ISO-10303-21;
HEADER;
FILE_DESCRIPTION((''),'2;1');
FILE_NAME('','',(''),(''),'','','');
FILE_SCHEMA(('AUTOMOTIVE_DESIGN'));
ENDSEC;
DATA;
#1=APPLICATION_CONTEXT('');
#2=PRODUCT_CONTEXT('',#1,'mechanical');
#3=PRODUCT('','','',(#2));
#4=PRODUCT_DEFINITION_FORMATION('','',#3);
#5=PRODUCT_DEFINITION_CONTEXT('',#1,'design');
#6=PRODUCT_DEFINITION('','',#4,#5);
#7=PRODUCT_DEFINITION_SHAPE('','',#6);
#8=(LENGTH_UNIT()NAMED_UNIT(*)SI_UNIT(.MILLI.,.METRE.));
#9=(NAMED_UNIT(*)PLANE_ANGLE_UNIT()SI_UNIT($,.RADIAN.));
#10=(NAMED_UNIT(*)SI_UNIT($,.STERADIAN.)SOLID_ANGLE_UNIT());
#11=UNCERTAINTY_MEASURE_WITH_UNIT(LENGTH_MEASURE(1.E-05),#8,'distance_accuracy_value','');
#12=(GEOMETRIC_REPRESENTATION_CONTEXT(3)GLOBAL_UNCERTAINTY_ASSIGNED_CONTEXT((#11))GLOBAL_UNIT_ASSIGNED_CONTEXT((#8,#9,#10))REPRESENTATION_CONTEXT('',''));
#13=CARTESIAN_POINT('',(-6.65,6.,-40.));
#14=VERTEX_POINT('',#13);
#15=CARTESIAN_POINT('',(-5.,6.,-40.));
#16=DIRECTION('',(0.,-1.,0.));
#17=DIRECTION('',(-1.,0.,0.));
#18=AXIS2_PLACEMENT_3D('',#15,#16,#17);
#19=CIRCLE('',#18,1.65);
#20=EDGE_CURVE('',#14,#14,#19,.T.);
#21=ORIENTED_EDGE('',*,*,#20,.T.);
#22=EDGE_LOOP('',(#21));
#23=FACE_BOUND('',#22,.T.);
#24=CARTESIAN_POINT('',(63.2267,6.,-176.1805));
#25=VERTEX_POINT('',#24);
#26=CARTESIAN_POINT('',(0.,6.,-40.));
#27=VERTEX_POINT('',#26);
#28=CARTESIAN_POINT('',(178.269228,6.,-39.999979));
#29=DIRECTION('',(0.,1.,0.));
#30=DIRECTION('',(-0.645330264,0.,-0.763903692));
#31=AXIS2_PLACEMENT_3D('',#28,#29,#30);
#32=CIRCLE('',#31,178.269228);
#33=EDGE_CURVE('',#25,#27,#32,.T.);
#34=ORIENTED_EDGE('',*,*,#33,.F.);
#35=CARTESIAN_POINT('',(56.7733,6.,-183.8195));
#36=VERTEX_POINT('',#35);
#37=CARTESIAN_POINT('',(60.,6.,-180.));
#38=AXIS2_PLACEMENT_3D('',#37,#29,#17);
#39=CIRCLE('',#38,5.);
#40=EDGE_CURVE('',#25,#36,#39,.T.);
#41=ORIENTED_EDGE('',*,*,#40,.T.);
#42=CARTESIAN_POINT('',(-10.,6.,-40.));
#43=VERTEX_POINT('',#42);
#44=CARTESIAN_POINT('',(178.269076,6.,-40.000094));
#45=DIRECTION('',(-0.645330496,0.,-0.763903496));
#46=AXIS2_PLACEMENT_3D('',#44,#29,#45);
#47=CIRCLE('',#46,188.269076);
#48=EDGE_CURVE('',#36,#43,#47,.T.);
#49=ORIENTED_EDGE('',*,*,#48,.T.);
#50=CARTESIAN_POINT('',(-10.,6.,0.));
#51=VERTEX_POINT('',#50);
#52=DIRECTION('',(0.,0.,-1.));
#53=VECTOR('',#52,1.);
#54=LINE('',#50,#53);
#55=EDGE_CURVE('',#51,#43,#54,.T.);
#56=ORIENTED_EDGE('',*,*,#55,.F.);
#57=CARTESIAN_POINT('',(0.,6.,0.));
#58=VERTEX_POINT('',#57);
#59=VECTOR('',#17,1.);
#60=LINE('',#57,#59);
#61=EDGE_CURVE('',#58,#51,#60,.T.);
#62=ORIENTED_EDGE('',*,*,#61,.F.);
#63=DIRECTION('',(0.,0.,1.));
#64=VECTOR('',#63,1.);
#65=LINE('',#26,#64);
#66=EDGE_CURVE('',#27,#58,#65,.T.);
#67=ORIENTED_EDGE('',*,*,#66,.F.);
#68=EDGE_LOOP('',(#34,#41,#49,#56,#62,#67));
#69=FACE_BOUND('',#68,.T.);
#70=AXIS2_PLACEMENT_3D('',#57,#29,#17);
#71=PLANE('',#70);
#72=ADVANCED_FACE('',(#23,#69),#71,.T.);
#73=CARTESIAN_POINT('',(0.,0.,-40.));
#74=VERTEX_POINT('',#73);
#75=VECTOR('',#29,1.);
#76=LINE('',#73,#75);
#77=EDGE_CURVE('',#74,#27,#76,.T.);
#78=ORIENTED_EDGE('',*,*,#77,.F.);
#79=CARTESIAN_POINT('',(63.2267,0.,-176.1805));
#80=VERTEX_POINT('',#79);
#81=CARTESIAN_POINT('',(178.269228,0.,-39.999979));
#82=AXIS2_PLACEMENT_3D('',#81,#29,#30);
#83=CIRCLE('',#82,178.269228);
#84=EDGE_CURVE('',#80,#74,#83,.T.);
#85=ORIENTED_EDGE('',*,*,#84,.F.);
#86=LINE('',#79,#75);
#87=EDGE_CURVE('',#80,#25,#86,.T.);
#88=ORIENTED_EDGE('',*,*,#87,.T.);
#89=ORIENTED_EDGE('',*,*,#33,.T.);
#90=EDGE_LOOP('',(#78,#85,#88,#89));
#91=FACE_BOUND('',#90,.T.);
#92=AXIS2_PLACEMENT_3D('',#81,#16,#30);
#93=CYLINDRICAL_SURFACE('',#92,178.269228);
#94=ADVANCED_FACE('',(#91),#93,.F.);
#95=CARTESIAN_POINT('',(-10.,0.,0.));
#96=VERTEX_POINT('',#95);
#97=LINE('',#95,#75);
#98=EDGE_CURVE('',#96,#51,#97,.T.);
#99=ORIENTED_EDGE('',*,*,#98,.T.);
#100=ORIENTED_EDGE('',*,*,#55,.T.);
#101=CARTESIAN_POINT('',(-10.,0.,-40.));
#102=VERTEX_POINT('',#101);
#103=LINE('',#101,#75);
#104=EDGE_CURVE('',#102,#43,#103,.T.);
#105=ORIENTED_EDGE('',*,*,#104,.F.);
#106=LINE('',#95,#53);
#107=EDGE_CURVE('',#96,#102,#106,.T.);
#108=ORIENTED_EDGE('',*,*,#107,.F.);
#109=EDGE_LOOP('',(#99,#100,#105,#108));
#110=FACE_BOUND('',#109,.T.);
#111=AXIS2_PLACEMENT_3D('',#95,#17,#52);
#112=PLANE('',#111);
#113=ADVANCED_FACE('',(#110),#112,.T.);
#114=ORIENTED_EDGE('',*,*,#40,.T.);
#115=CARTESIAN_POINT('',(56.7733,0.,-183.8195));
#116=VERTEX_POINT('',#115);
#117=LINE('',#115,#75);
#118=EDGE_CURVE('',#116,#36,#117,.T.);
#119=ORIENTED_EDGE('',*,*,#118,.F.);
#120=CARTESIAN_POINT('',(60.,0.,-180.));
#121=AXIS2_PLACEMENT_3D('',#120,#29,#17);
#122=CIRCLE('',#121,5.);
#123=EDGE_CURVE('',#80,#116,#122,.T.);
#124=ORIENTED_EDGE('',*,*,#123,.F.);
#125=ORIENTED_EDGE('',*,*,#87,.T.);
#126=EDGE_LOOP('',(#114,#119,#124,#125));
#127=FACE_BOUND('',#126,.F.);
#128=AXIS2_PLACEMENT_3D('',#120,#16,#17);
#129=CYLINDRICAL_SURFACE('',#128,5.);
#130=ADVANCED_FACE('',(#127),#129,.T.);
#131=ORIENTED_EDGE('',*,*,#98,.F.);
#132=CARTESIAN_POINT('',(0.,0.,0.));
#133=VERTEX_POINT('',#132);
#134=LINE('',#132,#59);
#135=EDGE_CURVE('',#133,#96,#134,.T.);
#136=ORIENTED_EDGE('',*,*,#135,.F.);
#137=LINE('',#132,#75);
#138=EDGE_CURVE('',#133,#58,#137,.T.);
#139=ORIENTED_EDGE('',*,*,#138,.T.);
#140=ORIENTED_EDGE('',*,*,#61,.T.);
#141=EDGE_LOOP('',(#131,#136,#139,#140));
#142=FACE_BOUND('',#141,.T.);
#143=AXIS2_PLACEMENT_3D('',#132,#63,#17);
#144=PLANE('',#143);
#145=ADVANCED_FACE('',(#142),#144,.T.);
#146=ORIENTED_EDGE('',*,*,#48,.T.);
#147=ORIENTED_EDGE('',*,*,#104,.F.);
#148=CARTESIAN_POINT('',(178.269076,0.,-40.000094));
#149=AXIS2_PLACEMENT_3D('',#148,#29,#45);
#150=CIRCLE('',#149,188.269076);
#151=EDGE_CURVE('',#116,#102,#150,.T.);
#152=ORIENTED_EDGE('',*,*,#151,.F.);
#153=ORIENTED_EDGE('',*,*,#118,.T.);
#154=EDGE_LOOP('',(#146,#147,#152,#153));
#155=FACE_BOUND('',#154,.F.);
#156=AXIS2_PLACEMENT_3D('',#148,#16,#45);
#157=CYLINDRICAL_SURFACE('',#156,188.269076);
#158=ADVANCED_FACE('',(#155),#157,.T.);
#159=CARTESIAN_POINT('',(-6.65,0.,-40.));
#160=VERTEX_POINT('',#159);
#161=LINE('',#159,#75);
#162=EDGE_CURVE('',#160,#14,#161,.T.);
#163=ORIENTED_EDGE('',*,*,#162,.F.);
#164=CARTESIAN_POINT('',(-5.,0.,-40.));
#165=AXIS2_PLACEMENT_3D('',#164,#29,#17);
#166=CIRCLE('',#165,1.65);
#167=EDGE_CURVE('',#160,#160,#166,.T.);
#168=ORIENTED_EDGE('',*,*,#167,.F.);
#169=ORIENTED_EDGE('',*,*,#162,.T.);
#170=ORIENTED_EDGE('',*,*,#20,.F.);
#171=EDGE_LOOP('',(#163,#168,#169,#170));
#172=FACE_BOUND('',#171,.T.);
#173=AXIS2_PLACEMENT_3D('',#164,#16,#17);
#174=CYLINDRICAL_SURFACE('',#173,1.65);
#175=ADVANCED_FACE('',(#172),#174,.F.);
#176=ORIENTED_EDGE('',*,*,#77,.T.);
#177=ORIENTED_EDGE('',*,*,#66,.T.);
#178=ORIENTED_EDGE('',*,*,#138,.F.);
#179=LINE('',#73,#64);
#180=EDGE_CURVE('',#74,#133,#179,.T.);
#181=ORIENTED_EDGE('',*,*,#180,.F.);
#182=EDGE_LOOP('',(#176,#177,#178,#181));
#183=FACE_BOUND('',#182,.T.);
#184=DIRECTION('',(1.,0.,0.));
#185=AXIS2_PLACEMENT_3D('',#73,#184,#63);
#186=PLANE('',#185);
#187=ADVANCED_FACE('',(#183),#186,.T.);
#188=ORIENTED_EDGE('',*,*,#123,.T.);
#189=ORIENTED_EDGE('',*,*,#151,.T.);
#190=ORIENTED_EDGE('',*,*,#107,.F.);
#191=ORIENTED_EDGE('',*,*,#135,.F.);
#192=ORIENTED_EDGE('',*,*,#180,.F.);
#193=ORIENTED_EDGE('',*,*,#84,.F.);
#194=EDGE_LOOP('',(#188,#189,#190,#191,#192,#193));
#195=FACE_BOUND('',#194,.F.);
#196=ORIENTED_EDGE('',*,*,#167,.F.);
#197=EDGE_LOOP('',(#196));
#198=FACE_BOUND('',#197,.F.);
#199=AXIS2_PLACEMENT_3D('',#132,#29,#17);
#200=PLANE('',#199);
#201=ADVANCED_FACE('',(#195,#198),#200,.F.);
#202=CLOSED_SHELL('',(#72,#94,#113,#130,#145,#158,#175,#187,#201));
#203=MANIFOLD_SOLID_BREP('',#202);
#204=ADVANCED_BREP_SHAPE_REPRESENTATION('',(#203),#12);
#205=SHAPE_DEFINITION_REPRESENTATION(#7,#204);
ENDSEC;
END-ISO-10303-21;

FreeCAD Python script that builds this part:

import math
import FreeCAD as App
import Part
import Sketcher

V = App.Vector
Q = App.Units.Quantity

doc = App.newDocument("Part")
body = doc.addObject("PartDesign::Body", "Body")

sketch1 = body.newObject("Sketcher::SketchObject", "Sketch")
sketch1.AttachmentSupport = (doc.getObject("XZ_Plane"), [""])
sketch1.MapMode = "FlatFace"
sketch1.addGeometry([
    Part.LineSegment(V(-10, 0, 0), V(0, 0, 0)),
    Part.LineSegment(V(0, 0, 0), V(0, -40, 0)),
    Part.ArcOfCircle(Part.Circle(V(178.2692, -40, 0), V(0, 0, 1), 178.269194), math.radians(180), math.radians(229.80956)),
    Part.ArcOfCircle(Part.Circle(V(60, -180, 0), V(0, 0, 1), 5), math.radians(-130.191005), math.radians(49.808995)),
    Part.ArcOfCircle(Part.Circle(V(178.2692, -40, 0), V(0, 0, 1), 188.269228), math.radians(180), math.radians(229.80953)),
    Part.LineSegment(V(-10, -40, 0), V(-10, 0, 0)),
    Part.Circle(V(-5, -40, 0), V(0, 0, 1), 1.65),
], False)
sketch1.addConstraint([
    Sketcher.Constraint("Coincident", 0, 2, 1, 1),
    Sketcher.Constraint("Tangent", 1, 2, 2, 1),
    Sketcher.Constraint("Tangent", 2, 2, 3, 2),
    Sketcher.Constraint("Tangent", 3, 1, 4, 2),
    Sketcher.Constraint("Tangent", 4, 1, 5, 1),
    Sketcher.Constraint("Coincident", 5, 2, 0, 1),
    Sketcher.Constraint("Horizontal", 0),
    Sketcher.Constraint("Vertical", 1),
    Sketcher.Constraint("Vertical", 5),
    Sketcher.Constraint("Coincident", 0, 2, -1, 1),
    Sketcher.Constraint("Coincident", 4, 3, 2, 3),
    Sketcher.Constraint("Horizontal", 4, 3, 6, 3),
    Sketcher.Constraint("Radius", 3, Q("5 mm")),
    Sketcher.Constraint("Diameter", 6, Q("3.3 mm")),
    Sketcher.Constraint("DistanceY", 1, 2, 1, 1, Q("40 mm")),
    Sketcher.Constraint("DistanceX", -1, 1, 3, 3, Q("60 mm")),
    Sketcher.Constraint("DistanceY", 3, 3, -1, 1, Q("180 mm")),
    Sketcher.Constraint("DistanceX", 6, 3, -1, 1, Q("5 mm")),
])
pad1 = body.newObject("PartDesign::Pad", "Pad")
pad1.Profile = sketch1
pad1.Length = 6
pad1.Reversed = True

doc.recompute()
